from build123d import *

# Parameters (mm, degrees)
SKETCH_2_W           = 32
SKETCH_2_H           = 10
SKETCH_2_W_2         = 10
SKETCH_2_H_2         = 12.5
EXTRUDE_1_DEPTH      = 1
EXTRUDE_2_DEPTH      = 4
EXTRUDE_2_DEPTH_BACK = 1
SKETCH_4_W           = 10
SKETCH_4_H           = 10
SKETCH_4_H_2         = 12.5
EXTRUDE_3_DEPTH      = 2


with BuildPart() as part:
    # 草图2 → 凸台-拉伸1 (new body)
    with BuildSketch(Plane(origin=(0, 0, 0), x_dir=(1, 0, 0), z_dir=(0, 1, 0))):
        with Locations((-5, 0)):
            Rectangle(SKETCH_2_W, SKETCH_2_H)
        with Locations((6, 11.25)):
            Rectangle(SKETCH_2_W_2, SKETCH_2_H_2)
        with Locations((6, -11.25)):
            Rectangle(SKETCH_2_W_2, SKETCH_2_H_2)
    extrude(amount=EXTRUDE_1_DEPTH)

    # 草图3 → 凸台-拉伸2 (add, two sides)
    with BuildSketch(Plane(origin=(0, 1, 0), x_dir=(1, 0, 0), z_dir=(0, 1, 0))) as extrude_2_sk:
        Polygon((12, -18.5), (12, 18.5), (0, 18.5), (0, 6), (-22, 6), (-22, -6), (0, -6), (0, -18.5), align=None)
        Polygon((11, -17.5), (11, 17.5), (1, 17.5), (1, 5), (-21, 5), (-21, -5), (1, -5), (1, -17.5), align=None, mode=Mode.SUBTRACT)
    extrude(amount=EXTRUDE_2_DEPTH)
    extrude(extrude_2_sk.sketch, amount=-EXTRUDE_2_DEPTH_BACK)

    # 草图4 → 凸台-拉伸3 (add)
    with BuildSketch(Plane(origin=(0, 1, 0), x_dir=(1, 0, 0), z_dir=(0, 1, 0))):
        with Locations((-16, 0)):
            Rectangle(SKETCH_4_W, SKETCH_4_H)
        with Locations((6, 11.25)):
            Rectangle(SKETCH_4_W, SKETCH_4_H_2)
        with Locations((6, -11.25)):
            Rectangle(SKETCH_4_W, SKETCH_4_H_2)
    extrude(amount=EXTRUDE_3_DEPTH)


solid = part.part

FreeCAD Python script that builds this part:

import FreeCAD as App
import Part
import Sketcher
from FreeCAD import Vector


def add_polygon(sketch, points):
    """Adds a closed chain of lines whose ends are joined by coincident constraints."""
    first, n = sketch.GeometryCount, len(points)
    for a, b in zip(points, points[1:] + points[:1]):
        sketch.addGeometry(Part.LineSegment(App.Vector(*a, 0), App.Vector(*b, 0)), False)
    for i in range(n):
        sketch.addConstraint(Sketcher.Constraint("Coincident", first + i, 2, first + (i + 1) % n, 1))

doc = App.newDocument("Part")
body = doc.addObject("PartDesign::Body", "Body")

# Sketch on XZ plane
sketch1 = body.newObject("Sketcher::SketchObject", "Sketch")
sketch1.AttachmentSupport = (doc.getObject("XZ_Plane"), [""])
sketch1.MapMode = "FlatFace"
add_polygon(sketch1, [(-21, -5), (-21, 5), (1, 5), (1, 18), (11, 18), (11, -18), (1, -18), (1, -5)])  # lines 0-7
sketch1.addConstraint(Sketcher.Constraint("Vertical", 0))
sketch1.addConstraint(Sketcher.Constraint("Horizontal", 1))
sketch1.addConstraint(Sketcher.Constraint("Vertical", 2))
sketch1.addConstraint(Sketcher.Constraint("Horizontal", 3))
sketch1.addConstraint(Sketcher.Constraint("Vertical", 4))
sketch1.addConstraint(Sketcher.Constraint("Horizontal", 5))
sketch1.addConstraint(Sketcher.Constraint("Vertical", 6))
sketch1.addConstraint(Sketcher.Constraint("Horizontal", 7))
sketch1.addConstraint(Sketcher.Constraint("Symmetric", 2, 2, 5, 2, -1))
sketch1.addConstraint(Sketcher.Constraint("Equal", 5, 0))
sketch1.addConstraint(Sketcher.Constraint("Equal", 2, 6))
sketch1.addConstraint(Sketcher.Constraint("DistanceX", 1, 1, 1, 2, 22.0))
sketch1.addConstraint(Sketcher.Constraint("DistanceX", 3, 1, 3, 2, 10.0))
sketch1.addConstraint(Sketcher.Constraint("DistanceY", 4, 2, 4, 1, 35.0))
sketch1.addConstraint(Sketcher.Constraint("DistanceX", 0, 2, -1, 1, 21.0))
pad1 = body.newObject("PartDesign::Pad", "Pad")
pad1.Profile = sketch1
pad1.Length = 1
pad1.Reversed = True

# Sketch on XZ plane
sketch2 = body.newObject("Sketcher::SketchObject", "Sketch001")
sketch2.AttachmentSupport = (doc.getObject("XZ_Plane"), [""])
sketch2.MapMode = "FlatFace"
sketch2.AttachmentOffset = App.Placement(Vector(0, 0, -1), App.Rotation())
add_polygon(sketch2, [(12, 18), (12, -18), (0, -18), (0, -6), (-22, -6), (-22, 6), (0, 6), (0, 18)])  # lines 0-7
add_polygon(sketch2, [(11, -18), (11, 18), (1, 18), (1, 5), (-21, 5), (-21, -5), (1, -5), (1, -18)])  # lines 8-15
sketch2.addConstraint(Sketcher.Constraint("Vertical", 0))
sketch2.addConstraint(Sketcher.Constraint("Horizontal", 1))
sketch2.addConstraint(Sketcher.Constraint("Vertical", 2))
sketch2.addConstraint(Sketcher.Constraint("Horizontal", 3))
sketch2.addConstraint(Sketcher.Constraint("Vertical", 4))
sketch2.addConstraint(Sketcher.Constraint("Horizontal", 5))
sketch2.addConstraint(Sketcher.Constraint("Vertical", 6))
sketch2.addConstraint(Sketcher.Constraint("Horizontal", 7))
sketch2.addConstraint(Sketcher.Constraint("Vertical", 8))
sketch2.addConstraint(Sketcher.Constraint("Horizontal", 9))
sketch2.addConstraint(Sketcher.Constraint("Vertical", 10))
sketch2.addConstraint(Sketcher.Constraint("Horizontal", 11))
sketch2.addConstraint(Sketcher.Constraint("Vertical", 12))
sketch2.addConstraint(Sketcher.Constraint("Horizontal", 13))
sketch2.addConstraint(Sketcher.Constraint("Vertical", 14))
sketch2.addConstraint(Sketcher.Constraint("Horizontal", 15))
sketch2.addConstraint(Sketcher.Constraint("Symmetric", 2, 2, 5, 2, -1, 1))
sketch2.addConstraint(Sketcher.Constraint("Symmetric", 1, 2, 6, 2, -1))
sketch2.addConstraint(Sketcher.Constraint("Symmetric", 10, 2, 13, 2, -1))
sketch2.addConstraint(Sketcher.Constraint("Equal", 5, 11))
sketch2.addConstraint(Sketcher.Constraint("Equal", 7, 4))
sketch2.addConstraint(Sketcher.Constraint("Equal", 6, 10))
sketch2.addConstraint(Sketcher.Constraint("Equal", 15, 12))
sketch2.addConstraint(Sketcher.Constraint("Equal", 10, 14))
sketch2.addConstraint(Sketcher.Constraint("DistanceX", 1, 2, 1, 1, 12.0))
sketch2.addConstraint(Sketcher.Constraint("DistanceX", 3, 2, 3, 1, 22.0))
sketch2.addConstraint(Sketcher.Constraint("DistanceX", 9, 2, 9, 1, 10.0))
sketch2.addConstraint(Sketcher.Constraint("DistanceY", 0, 2, 0, 1, 37.0))
sketch2.addConstraint(Sketcher.Constraint("DistanceX", -1, 1, 8, 2, 11.0))
pad2 = body.newObject("PartDesign::Pad", "Pad001")
pad2.Profile = sketch2
pad2.Type = "TwoLengths"
pad2.Length = 4
pad2.Length2 = 1
pad2.Reversed = True

# Sketch on XZ plane
sketch3 = body.newObject("Sketcher::SketchObject", "Sketch002")
sketch3.AttachmentSupport = (doc.getObject("XZ_Plane"), [""])
sketch3.MapMode = "FlatFace"
sketch3.AttachmentOffset = App.Placement(Vector(0, 0, -1), App.Rotation())
add_polygon(sketch3, [(-21, -5), (-21, 5), (-11, 5), (-11, -5)])  # lines 0-3
add_polygon(sketch3, [(1, -18), (1, -5), (11, -5), (11, -18)])  # lines 4-7
add_polygon(sketch3, [(1, 5), (1, 18), (11, 18), (11, 5)])  # lines 8-11
sketch3.addConstraint(Sketcher.Constraint("Vertical", 0))
sketch3.addConstraint(Sketcher.Constraint("Horizontal", 1))
sketch3.addConstraint(Sketcher.Constraint("Vertical", 2))
sketch3.addConstraint(Sketcher.Constraint("Horizontal", 3))
sketch3.addConstraint(Sketcher.Constraint("Vertical", 4))
sketch3.addConstraint(Sketcher.Constraint("Horizontal", 5))
sketch3.addConstraint(Sketcher.Constraint("Vertical", 6))
sketch3.addConstraint(Sketcher.Constraint("Horizontal", 7))
sketch3.addConstraint(Sketcher.Constraint("Vertical", 8))
sketch3.addConstraint(Sketcher.Constraint("Horizontal", 9))
sketch3.addConstraint(Sketcher.Constraint("Vertical", 10))
sketch3.addConstraint(Sketcher.Constraint("Horizontal", 11))
sketch3.addConstraint(Sketcher.Constraint("Symmetric", 1, 2, 5, 2, -1, 1))
sketch3.addConstraint(Sketcher.Constraint("Symmetric", 2, 2, 10, 2, -1, 1))
sketch3.addConstraint(Sketcher.Constraint("Symmetric", 7, 2, 8, 2, -1))
sketch3.addConstraint(Sketcher.Constraint("Horizontal", 3, 2, 4, 2))
sketch3.addConstraint(Sketcher.Constraint("Equal", 3, 5))
sketch3.addConstraint(Sketcher.Constraint("Equal", 11, 0))
sketch3.addConstraint(Sketcher.Constraint("DistanceX", 1, 1, 1, 2, 10.0))
sketch3.addConstraint(Sketcher.Constraint("DistanceY", 4, 1, 4, 2, 12.5))
sketch3.addConstraint(Sketcher.Constraint("DistanceX", 0, 2, -1, 1, 21.0))
pad3 = body.newObject("PartDesign::Pad", "Pad002")
pad3.Profile = sketch3
pad3.Length = 2
pad3.Reversed = True

doc.recompute()
